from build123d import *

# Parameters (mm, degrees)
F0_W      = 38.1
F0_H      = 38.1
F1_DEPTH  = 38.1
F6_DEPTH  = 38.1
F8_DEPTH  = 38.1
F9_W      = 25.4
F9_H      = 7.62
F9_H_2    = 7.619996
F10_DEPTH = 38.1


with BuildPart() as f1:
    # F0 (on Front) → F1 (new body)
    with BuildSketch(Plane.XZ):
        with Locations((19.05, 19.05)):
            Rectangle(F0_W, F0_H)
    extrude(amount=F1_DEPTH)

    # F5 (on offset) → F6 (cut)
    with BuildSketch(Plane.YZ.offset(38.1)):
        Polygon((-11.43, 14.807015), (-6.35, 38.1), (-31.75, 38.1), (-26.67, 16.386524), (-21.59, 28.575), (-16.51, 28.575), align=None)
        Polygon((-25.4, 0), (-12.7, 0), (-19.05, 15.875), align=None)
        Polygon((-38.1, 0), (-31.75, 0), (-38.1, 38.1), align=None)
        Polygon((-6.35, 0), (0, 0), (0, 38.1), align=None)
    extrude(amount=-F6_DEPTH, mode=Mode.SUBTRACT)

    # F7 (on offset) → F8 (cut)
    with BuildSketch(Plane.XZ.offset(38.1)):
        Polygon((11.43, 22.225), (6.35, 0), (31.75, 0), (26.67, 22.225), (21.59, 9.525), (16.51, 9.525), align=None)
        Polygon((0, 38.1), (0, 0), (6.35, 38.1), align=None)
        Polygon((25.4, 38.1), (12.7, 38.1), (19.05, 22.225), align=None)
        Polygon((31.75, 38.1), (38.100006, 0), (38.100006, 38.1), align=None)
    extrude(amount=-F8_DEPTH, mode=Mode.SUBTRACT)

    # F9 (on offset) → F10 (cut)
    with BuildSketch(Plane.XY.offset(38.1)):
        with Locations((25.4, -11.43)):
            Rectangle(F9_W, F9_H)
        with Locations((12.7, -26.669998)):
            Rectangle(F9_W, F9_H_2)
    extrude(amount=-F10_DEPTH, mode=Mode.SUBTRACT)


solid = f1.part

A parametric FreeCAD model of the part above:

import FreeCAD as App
import Part
import Sketcher
from FreeCAD import Vector
Q = App.Units.Quantity

doc = App.newDocument("Part")
params = doc.addObject("Spreadsheet::Sheet", "Params")
for row, (alias, value) in enumerate([
    ("sketch1_width", "1.5 in"),
    ("pad1_length", "1.5 in"),
    ("sketch2_width", "1 in"),
    ("sketch2_width2", "0.2 in"),
    ("sketch2_width3", "0.5 in"),
    ("sketch2_height", "1.5 in"),
    ("pocket1_length", "1.5 in"),
    ("sketch3_width", "1 in"),
    ("sketch3_width2", "0.2 in"),
    ("sketch3_width3", "0.5 in"),
    ("sketch3_height", "1.5 in"),
    ("sketch3_width4", "0.25 in"),
    ("pocket2_length", "1.5 in"),
    ("sketch4_width", "1 in"),
    ("sketch4_height", "0.3 in"),
    ("sketch4_height2", "0.2999998 in"),
    ("pocket3_length", "1.5 in"),
], start=1):
    params.set(f"A{row}", alias)
    params.set(f"B{row}", "=" + value)
    params.setAlias(f"B{row}", alias)

body = doc.addObject("PartDesign::Body", "Body")

sketch1 = body.newObject("Sketcher::SketchObject", "Sketch")
sketch1.AttachmentSupport = (doc.getObject("XZ_Plane"), [""])
sketch1.MapMode = "FlatFace"
sketch1.addGeometry([
    Part.LineSegment(Vector(0, 38.1, 0), Vector(0, 0, 0)),
    Part.LineSegment(Vector(0, 0, 0), Vector(38.1, 0, 0)),
    Part.LineSegment(Vector(38.1, 0, 0), Vector(38.1, 38.1, 0)),
    Part.LineSegment(Vector(38.1, 38.1, 0), Vector(0, 38.1, 0)),
], False)
sketch1.addConstraint([
    Sketcher.Constraint("Coincident", 0, 2, 1, 1),
    Sketcher.Constraint("Coincident", 1, 2, 2, 1),
    Sketcher.Constraint("Coincident", 2, 2, 3, 1),
    Sketcher.Constraint("Coincident", 3, 2, 0, 1),
    Sketcher.Constraint("Vertical", 0),
    Sketcher.Constraint("Horizontal", 1),
    Sketcher.Constraint("Vertical", 2),
    Sketcher.Constraint("Horizontal", 3),
    Sketcher.Constraint("Coincident", 0, 2, -1, 1),
    Sketcher.Constraint("Equal", 3, 0),
    Sketcher.Constraint("DistanceX", 1, 1, 1, 2, Q("1.5 in")),
])
sketch1.setExpression("Constraints[10]", "Params.sketch1_width")
pad1 = body.newObject("PartDesign::Pad", "Pad")
pad1.Profile = sketch1
pad1.setExpression("Length", "Params.pad1_length")

sketch2 = body.newObject("Sketcher::SketchObject", "Sketch001")
sketch2.AttachmentSupport = (doc.getObject("YZ_Plane"), [""])
sketch2.MapMode = "FlatFace"
sketch2.AttachmentOffset = App.Placement(Vector(0, 0, 1.5 * 25.4), App.Rotation())
sketch2.addGeometry([
    Part.LineSegment(Vector(-11.43, 14.807015, 0), Vector(-6.35, 38.1, 0)),
    Part.LineSegment(Vector(-6.35, 38.1, 0), Vector(-31.75, 38.1, 0)),
    Part.LineSegment(Vector(-31.75, 38.1, 0), Vector(-26.67, 16.386524, 0)),
    Part.LineSegment(Vector(-26.67, 16.386524, 0), Vector(-21.59, 28.575, 0)),
    Part.LineSegment(Vector(-21.59, 28.575, 0), Vector(-16.51, 28.575, 0)),
    Part.LineSegment(Vector(-16.51, 28.575, 0), Vector(-11.43, 14.807015, 0)),
    Part.LineSegment(Vector(-25.4, 0, 0), Vector(-12.7, 0, 0)),
    Part.LineSegment(Vector(-12.7, 0, 0), Vector(-19.05, 15.875, 0)),
    Part.LineSegment(Vector(-19.05, 15.875, 0), Vector(-25.4, 0, 0)),
    Part.LineSegment(Vector(-38.1, 0, 0), Vector(-31.75, 0, 0)),
    Part.LineSegment(Vector(-31.75, 0, 0), Vector(-38.1, 38.1, 0)),
    Part.LineSegment(Vector(-38.1, 38.1, 0), Vector(-38.1, 0, 0)),
    Part.LineSegment(Vector(-6.35, 0, 0), Vector(0, 0, 0)),
    Part.LineSegment(Vector(0, 0, 0), Vector(0, 38.1, 0)),
    Part.LineSegment(Vector(0, 38.1, 0), Vector(-6.35, 0, 0)),
], False)
sketch2.addConstraint([
    Sketcher.Constraint("Coincident", 0, 2, 1, 1),
    Sketcher.Constraint("Coincident", 1, 2, 2, 1),
    Sketcher.Constraint("Coincident", 2, 2, 3, 1),
    Sketcher.Constraint("Coincident", 3, 2, 4, 1),
    Sketcher.Constraint("Coincident", 4, 2, 5, 1),
    Sketcher.Constraint("Coincident", 5, 2, 0, 1),
    Sketcher.Constraint("Coincident", 6, 2, 7, 1),
    Sketcher.Constraint("Coincident", 7, 2, 8, 1),
    Sketcher.Constraint("Coincident", 8, 2, 6, 1),
    Sketcher.Constraint("Coincident", 9, 2, 10, 1),
    Sketcher.Constraint("Coincident", 10, 2, 11, 1),
    Sketcher.Constraint("Coincident", 11, 2, 9, 1),
    Sketcher.Constraint("Coincident", 12, 2, 13, 1),
    Sketcher.Constraint("Coincident", 13, 2, 14, 1),
    Sketcher.Constraint("Coincident", 14, 2, 12, 1),
    Sketcher.Constraint("Horizontal", 1),
    Sketcher.Constraint("Horizontal", 4),
    Sketcher.Constraint("Horizontal", 6),
    Sketcher.Constraint("Horizontal", 9),
    Sketcher.Constraint("Vertical", 11),
    Sketcher.Constraint("Horizontal", 12),
    Sketcher.Constraint("Vertical", 13),
    Sketcher.Constraint("Coincident", 12, 2, -1, 1),
    Sketcher.Constraint("PointOnObject", 6, 2, -1),
    Sketcher.Constraint("PointOnObject", 9, 2, -1),
    Sketcher.Constraint("Horizontal", 1, 2, 10, 2),
    Sketcher.Constraint("Horizontal", 10, 2, 13, 2),
    Sketcher.Constraint("Vertical", 1, 2, 9, 2),
    Sketcher.Constraint("Vertical", 0, 2, 14, 2),
    Sketcher.Constraint("Equal", 9, 12),
    Sketcher.Constraint("Equal", 7, 8),
    Sketcher.Constraint("DistanceX", 1, 2, 1, 1, Q("1 in")),
    Sketcher.Constraint("DistanceX", 4, 1, 4, 2, Q("0.2 in")),
    Sketcher.Constraint("DistanceX", 6, 1, 6, 2, Q("0.5 in")),
    Sketcher.Constraint("DistanceY", 11, 2, 11, 1, Q("1.5 in")),
    Sketcher.Constraint("DistanceX", 8, 2, -1, 1, Q("1 in")),
    Sketcher.Constraint("DistanceX", 11, 2, 6, 2, Q("1 in")),
    Sketcher.Constraint("DistanceX", 1, 2, 2, 2, Q("0.2 in")),
    Sketcher.Constraint("DistanceX", 2, 2, 3, 2, Q("0.2 in")),
    Sketcher.Constraint("DistanceX", 4, 2, 5, 2, Q("0.2 in")),
    Sketcher.Constraint("DistanceY", 7, 2, 3, 2, Q("0.5 in")),
    Sketcher.Constraint("DistanceY", -1, 1, 3, 2, Q("1.125 in")),
    Sketcher.Constraint("Distance", 2, 22.299808),
    Sketcher.Constraint("Distance", 5, 14.675279),
])
sketch2.setExpression("Constraints[31]", "Params.sketch2_width")
sketch2.setExpression("Constraints[32]", "Params.sketch2_width2")
sketch2.setExpression("Constraints[33]", "Params.sketch2_width3")
sketch2.setExpression("Constraints[34]", "Params.sketch2_height")
pocket1 = body.newObject("PartDesign::Pocket", "Pocket")
pocket1.Profile = sketch2
pocket1.setExpression("Length", "Params.pocket1_length")

sketch3 = body.newObject("Sketcher::SketchObject", "Sketch002")
sketch3.AttachmentSupport = (doc.getObject("XZ_Plane"), [""])
sketch3.MapMode = "FlatFace"
sketch3.AttachmentOffset = App.Placement(Vector(0, 0, 1.5 * 25.4), App.Rotation())
sketch3.addGeometry([
    Part.LineSegment(Vector(11.43, 22.225, 0), Vector(6.35, 0, 0)),
    Part.LineSegment(Vector(6.35, 0, 0), Vector(31.75, 0, 0)),
    Part.LineSegment(Vector(31.75, 0, 0), Vector(26.67, 22.225, 0)),
    Part.LineSegment(Vector(26.67, 22.225, 0), Vector(21.59, 9.525, 0)),
    Part.LineSegment(Vector(21.59, 9.525, 0), Vector(16.51, 9.525, 0)),
    Part.LineSegment(Vector(16.51, 9.525, 0), Vector(11.43, 22.225, 0)),
    Part.LineSegment(Vector(0, 38.1, 0), Vector(0, 0, 0)),
    Part.LineSegment(Vector(0, 0, 0), Vector(6.35, 38.1, 0)),
    Part.LineSegment(Vector(6.35, 38.1, 0), Vector(0, 38.1, 0)),
    Part.LineSegment(Vector(25.4, 38.1, 0), Vector(12.7, 38.1, 0)),
    Part.LineSegment(Vector(12.7, 38.1, 0), Vector(19.05, 22.225, 0)),
    Part.LineSegment(Vector(19.05, 22.225, 0), Vector(25.4, 38.1, 0)),
    Part.LineSegment(Vector(31.75, 38.1, 0), Vector(38.100006, 0, 0)),
    Part.LineSegment(Vector(38.100006, 0, 0), Vector(38.100006, 38.1, 0)),
    Part.LineSegment(Vector(38.100006, 38.1, 0), Vector(31.75, 38.1, 0)),
], False)
sketch3.addConstraint([
    Sketcher.Constraint("Coincident", 0, 2, 1, 1),
    Sketcher.Constraint("Coincident", 1, 2, 2, 1),
    Sketcher.Constraint("Coincident", 2, 2, 3, 1),
    Sketcher.Constraint("Coincident", 3, 2, 4, 1),
    Sketcher.Constraint("Coincident", 4, 2, 5, 1),
    Sketcher.Constraint("Coincident", 5, 2, 0, 1),
    Sketcher.Constraint("Coincident", 6, 2, 7, 1),
    Sketcher.Constraint("Coincident", 7, 2, 8, 1),
    Sketcher.Constraint("Coincident", 8, 2, 6, 1),
    Sketcher.Constraint("Coincident", 9, 2, 10, 1),
    Sketcher.Constraint("Coincident", 10, 2, 11, 1),
    Sketcher.Constraint("Coincident", 11, 2, 9, 1),
    Sketcher.Constraint("Coincident", 12, 2, 13, 1),
    Sketcher.Constraint("Coincident", 13, 2, 14, 1),
    Sketcher.Constraint("Coincident", 14, 2, 12, 1),
    Sketcher.Constraint("Horizontal", 1),
    Sketcher.Constraint("Horizontal", 4),
    Sketcher.Constraint("Vertical", 6),
    Sketcher.Constraint("Horizontal", 8),
    Sketcher.Constraint("Horizontal", 9),
    Sketcher.Constraint("Vertical", 13),
    Sketcher.Constraint("Horizontal", 14),
    Sketcher.Constraint("Coincident", 6, 2, -1, 1),
    Sketcher.Constraint("PointOnObject", 0, 2, -1),
    Sketcher.Constraint("PointOnObject", 12, 2, -1),
    Sketcher.Constraint("Parallel", 5, 10),
    Sketcher.Constraint("Parallel", 3, 11),
    Sketcher.Constraint("Horizontal", 2, 2, 5, 2),
    Sketcher.Constraint("Horizontal", 8, 2, 9, 2),
    Sketcher.Constraint("Horizontal", 5, 2, 10, 2),
    Sketcher.Constraint("Horizontal", 11, 2, 13, 2),
    Sketcher.Constraint("Vertical", 0, 2, 7, 2),
    Sketcher.Constraint("Vertical", 1, 2, 14, 2),
    Sketcher.Constraint("Equal", 0, 2),
    Sketcher.Constraint("Equal", 3, 5),
    Sketcher.Constraint("Equal", 7, 12),
    Sketcher.Constraint("DistanceX", 1, 1, 1, 2, Q("1 in")),
    Sketcher.Constraint("DistanceX", 4, 2, 4, 1, Q("0.2 in")),
    Sketcher.Constraint("DistanceX", 9, 2, 9, 1, Q("0.5 in")),
    Sketcher.Constraint("DistanceY", 6, 2, 6, 1, Q("1.5 in")),
    Sketcher.Constraint("DistanceX", -1, 1, 11, 2, Q("1 in")),
    Sketcher.Constraint("DistanceX", 8, 2, 8, 1, Q("0.25 in")),
    Sketcher.Constraint("DistanceX", 2, 2, 1, 2, Q("0.2 in")),
    Sketcher.Constraint("DistanceY", 3, 2, 2, 2, Q("0.5 in")),
])
sketch3.setExpression("Constraints[36]", "Params.sketch3_width")
sketch3.setExpression("Constraints[37]", "Params.sketch3_width2")
sketch3.setExpression("Constraints[38]", "Params.sketch3_width3")
sketch3.setExpression("Constraints[39]", "Params.sketch3_height")
sketch3.setExpression("Constraints[41]", "Params.sketch3_width4")
pocket2 = body.newObject("PartDesign::Pocket", "Pocket001")
pocket2.Profile = sketch3
pocket2.setExpression("Length", "Params.pocket2_length")

sketch4 = body.newObject("Sketcher::SketchObject", "Sketch003")
sketch4.AttachmentSupport = (doc.getObject("XY_Plane"), [""])
sketch4.MapMode = "FlatFace"
sketch4.AttachmentOffset = App.Placement(Vector(0, 0, 1.5 * 25.4), App.Rotation())
sketch4.addGeometry([
    Part.LineSegment(Vector(12.7, -7.62, 0), Vector(12.7, -15.24, 0)),
    Part.LineSegment(Vector(12.7, -15.24, 0), Vector(38.1, -15.24, 0)),
    Part.LineSegment(Vector(38.1, -15.24, 0), Vector(38.1, -7.62, 0)),
    Part.LineSegment(Vector(38.1, -7.62, 0), Vector(12.7, -7.62, 0)),
    Part.LineSegment(Vector(0, -22.86, 0), Vector(0, -30.479996, 0)),
    Part.LineSegment(Vector(0, -30.479996, 0), Vector(25.4, -30.479996, 0)),
    Part.LineSegment(Vector(25.4, -30.479996, 0), Vector(25.4, -22.86, 0)),
    Part.LineSegment(Vector(25.4, -22.86, 0), Vector(0, -22.86, 0)),
], False)
sketch4.addConstraint([
    Sketcher.Constraint("Coincident", 0, 2, 1, 1),
    Sketcher.Constraint("Coincident", 1, 2, 2, 1),
    Sketcher.Constraint("Coincident", 2, 2, 3, 1),
    Sketcher.Constraint("Coincident", 3, 2, 0, 1),
    Sketcher.Constraint("Coincident", 4, 2, 5, 1),
    Sketcher.Constraint("Coincident", 5, 2, 6, 1),
    Sketcher.Constraint("Coincident", 6, 2, 7, 1),
    Sketcher.Constraint("Coincident", 7, 2, 4, 1),
    Sketcher.Constraint("Vertical", 0),
    Sketcher.Constraint("Horizontal", 1),
    Sketcher.Constraint("Vertical", 2),
    Sketcher.Constraint("Horizontal", 3),
    Sketcher.Constraint("Vertical", 4),
    Sketcher.Constraint("Horizontal", 5),
    Sketcher.Constraint("Vertical", 6),
    Sketcher.Constraint("Horizontal", 7),
    Sketcher.Constraint("PointOnObject", 4, 2, -2),
    Sketcher.Constraint("Equal", 3, 5),
    Sketcher.Constraint("DistanceX", 1, 1, 1, 2, Q("1 in")),
    Sketcher.Constraint("DistanceY", 0, 2, 0, 1, Q("0.3 in")),
    Sketcher.Constraint("DistanceY", 4, 2, 4, 1, Q("0.2999998 in")),
    Sketcher.Constraint("DistanceX", -1, 1, 0, 2, Q("0.5 in")),
    Sketcher.Constraint("DistanceY", 0, 2, -1, 1, Q("0.6 in")),
    Sketcher.Constraint("DistanceY", 4, 2, -1, 1, Q("1.1999998 in")),
])
sketch4.setExpression("Constraints[18]", "Params.sketch4_width")
sketch4.setExpression("Constraints[19]", "Params.sketch4_height")
sketch4.setExpression("Constraints[20]", "Params.sketch4_height2")
pocket3 = body.newObject("PartDesign::Pocket", "Pocket002")
pocket3.Profile = sketch4
pocket3.setExpression("Length", "Params.pocket3_length")

doc.recompute()
